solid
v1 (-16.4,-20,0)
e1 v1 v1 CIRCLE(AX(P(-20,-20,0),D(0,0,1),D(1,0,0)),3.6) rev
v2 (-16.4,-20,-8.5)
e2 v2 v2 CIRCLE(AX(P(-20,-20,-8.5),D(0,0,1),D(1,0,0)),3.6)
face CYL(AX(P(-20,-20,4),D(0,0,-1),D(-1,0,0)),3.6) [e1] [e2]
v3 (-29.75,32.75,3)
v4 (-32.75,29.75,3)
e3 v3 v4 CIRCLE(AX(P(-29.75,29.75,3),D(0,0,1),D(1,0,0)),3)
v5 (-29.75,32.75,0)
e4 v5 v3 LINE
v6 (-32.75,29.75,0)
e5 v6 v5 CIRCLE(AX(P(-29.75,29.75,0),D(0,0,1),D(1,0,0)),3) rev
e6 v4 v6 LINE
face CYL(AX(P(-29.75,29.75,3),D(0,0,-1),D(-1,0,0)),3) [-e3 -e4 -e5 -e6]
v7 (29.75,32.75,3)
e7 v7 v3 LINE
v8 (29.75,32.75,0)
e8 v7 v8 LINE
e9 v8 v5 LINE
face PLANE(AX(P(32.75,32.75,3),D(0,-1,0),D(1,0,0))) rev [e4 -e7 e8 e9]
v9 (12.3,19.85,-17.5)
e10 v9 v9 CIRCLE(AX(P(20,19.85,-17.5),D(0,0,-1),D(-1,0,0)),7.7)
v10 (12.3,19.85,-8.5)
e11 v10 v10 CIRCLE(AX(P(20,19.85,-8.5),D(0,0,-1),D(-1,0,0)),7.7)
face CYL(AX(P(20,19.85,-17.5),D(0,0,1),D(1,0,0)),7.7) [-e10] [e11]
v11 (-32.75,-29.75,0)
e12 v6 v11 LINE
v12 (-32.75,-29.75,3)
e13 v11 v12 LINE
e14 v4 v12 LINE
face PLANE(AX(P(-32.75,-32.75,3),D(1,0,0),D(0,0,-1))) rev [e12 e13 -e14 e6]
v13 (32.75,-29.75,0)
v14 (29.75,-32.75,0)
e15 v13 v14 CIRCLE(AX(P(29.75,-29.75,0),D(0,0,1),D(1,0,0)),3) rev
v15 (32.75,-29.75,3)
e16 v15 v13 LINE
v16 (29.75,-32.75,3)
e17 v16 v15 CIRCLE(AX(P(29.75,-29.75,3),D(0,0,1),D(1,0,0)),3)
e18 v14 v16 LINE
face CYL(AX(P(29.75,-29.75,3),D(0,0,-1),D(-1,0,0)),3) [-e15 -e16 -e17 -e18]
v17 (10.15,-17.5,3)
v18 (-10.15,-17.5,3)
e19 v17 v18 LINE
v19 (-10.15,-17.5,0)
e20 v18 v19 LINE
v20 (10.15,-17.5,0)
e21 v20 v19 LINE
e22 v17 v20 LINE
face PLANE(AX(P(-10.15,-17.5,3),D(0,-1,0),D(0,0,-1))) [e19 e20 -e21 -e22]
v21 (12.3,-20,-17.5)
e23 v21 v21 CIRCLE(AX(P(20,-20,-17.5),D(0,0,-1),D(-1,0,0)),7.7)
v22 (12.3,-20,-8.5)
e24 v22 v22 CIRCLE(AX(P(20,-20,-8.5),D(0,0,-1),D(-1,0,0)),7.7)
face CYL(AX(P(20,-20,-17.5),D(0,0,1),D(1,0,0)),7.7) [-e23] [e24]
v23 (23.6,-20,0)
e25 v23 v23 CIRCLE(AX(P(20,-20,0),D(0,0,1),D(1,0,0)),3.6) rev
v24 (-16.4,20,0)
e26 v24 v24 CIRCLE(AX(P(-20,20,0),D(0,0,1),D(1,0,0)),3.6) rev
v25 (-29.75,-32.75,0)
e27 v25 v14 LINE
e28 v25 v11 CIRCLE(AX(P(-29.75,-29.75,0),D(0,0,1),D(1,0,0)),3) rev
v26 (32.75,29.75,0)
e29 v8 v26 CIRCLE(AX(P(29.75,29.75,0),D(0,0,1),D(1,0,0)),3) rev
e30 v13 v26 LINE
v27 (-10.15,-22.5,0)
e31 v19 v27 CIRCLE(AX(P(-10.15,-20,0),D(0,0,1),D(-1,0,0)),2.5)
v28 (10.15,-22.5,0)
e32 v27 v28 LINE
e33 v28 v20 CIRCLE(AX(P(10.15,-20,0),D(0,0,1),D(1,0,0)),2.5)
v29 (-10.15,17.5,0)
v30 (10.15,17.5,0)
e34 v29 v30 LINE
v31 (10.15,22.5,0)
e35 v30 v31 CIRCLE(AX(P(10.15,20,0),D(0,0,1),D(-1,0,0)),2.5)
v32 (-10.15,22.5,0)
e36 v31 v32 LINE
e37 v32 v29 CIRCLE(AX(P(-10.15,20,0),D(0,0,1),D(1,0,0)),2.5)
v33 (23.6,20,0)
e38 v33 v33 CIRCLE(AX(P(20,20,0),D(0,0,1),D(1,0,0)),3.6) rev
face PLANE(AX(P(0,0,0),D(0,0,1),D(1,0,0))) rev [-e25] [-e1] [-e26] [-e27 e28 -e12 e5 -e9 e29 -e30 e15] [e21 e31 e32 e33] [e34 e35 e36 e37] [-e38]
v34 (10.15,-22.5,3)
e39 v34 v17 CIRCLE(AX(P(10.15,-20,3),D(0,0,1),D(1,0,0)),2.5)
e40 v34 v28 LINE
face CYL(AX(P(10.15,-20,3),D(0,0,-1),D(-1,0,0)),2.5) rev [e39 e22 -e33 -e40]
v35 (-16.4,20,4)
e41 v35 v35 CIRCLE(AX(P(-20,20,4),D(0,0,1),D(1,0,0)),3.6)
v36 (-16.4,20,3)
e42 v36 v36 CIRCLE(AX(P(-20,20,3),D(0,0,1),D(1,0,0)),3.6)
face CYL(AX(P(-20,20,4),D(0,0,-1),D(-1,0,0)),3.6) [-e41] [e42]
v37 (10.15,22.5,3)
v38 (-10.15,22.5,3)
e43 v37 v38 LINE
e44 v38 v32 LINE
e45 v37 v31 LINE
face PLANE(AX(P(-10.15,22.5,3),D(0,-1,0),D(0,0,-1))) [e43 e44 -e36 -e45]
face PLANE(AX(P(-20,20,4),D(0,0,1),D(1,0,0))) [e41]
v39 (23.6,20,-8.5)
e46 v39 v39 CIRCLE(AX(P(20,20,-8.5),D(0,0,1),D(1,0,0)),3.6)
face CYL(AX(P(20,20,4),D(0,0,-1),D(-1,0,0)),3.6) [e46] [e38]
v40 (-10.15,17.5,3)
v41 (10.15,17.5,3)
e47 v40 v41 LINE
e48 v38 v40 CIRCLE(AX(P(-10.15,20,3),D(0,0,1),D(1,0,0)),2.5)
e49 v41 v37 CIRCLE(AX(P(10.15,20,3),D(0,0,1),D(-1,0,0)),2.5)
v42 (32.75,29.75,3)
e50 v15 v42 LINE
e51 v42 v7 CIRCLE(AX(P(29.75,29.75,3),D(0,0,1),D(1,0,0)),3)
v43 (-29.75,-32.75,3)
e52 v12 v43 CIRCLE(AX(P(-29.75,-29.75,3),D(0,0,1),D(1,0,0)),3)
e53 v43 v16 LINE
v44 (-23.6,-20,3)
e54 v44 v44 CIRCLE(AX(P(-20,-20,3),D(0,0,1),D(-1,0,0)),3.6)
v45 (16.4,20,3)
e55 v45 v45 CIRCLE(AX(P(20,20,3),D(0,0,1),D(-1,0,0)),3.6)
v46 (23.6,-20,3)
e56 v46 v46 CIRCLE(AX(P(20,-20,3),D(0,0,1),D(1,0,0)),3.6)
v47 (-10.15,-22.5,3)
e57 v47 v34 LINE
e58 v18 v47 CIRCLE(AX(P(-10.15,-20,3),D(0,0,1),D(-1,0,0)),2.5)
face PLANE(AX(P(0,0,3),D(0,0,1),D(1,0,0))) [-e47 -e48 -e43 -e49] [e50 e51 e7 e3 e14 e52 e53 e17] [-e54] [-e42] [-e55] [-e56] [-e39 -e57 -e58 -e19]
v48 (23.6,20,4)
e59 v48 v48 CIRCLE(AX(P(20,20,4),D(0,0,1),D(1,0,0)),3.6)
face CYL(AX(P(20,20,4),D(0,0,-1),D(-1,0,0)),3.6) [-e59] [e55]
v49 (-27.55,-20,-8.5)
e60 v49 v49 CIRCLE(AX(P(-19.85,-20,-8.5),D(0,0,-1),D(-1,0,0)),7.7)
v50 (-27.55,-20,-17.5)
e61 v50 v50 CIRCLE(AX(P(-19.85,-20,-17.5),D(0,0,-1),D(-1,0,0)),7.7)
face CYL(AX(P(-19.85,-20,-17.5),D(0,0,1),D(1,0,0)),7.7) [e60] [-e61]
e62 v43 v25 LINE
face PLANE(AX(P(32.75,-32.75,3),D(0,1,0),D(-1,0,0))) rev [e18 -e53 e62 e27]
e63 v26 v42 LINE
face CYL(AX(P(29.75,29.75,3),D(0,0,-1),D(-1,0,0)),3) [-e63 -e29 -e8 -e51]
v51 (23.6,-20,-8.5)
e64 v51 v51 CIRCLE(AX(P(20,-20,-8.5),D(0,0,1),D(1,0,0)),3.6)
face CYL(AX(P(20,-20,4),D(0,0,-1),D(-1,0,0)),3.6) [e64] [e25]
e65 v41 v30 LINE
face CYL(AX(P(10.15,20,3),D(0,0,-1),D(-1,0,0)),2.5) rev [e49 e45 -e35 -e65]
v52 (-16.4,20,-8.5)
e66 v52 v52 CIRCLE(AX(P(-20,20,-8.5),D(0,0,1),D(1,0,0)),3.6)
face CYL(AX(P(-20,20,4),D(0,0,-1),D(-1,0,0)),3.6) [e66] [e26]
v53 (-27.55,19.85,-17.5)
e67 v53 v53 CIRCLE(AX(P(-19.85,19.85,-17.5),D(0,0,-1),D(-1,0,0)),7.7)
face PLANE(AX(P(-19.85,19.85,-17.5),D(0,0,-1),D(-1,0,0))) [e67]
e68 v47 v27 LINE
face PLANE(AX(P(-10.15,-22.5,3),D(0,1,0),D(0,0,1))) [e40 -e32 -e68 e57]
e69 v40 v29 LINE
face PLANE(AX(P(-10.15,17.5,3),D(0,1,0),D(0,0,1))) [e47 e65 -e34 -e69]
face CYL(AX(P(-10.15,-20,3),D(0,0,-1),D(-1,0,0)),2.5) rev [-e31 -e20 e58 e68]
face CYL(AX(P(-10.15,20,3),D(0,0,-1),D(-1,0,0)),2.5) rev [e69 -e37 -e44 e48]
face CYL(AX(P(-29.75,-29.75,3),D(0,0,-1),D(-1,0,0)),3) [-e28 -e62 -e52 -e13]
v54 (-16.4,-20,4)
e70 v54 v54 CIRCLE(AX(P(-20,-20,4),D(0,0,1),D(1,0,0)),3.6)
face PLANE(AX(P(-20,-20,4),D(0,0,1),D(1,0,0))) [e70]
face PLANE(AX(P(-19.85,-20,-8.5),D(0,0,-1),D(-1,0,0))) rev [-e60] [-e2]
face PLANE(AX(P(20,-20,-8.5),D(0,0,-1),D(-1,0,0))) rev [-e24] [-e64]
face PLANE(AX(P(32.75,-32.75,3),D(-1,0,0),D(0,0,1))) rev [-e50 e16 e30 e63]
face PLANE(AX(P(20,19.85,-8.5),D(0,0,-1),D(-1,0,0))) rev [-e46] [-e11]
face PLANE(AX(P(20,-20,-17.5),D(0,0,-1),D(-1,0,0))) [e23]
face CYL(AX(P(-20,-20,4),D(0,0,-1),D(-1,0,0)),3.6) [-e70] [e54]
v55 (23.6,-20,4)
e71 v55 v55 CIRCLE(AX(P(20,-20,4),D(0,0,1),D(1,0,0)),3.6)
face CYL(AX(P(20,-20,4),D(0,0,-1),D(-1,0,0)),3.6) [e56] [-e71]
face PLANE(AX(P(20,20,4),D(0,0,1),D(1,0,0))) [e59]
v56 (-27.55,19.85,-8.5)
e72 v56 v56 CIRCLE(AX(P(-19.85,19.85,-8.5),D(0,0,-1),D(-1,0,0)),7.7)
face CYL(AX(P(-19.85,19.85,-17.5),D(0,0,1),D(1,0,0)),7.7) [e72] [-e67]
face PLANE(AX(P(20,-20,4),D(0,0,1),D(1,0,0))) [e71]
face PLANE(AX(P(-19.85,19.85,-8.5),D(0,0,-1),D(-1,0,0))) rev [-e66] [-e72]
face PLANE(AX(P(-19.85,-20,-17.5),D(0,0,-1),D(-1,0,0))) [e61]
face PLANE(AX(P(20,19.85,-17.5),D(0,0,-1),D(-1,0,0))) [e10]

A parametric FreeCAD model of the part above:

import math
import FreeCAD as App
import Part
import Sketcher
from FreeCAD import Vector


def edges_at(feature, points):
    """Names of the edges that pass closest to the given points."""
    edges = feature.Shape.Edges
    near = lambda p: min(range(len(edges)), key=lambda i: edges[i].distToShape(Part.Vertex(*p))[0])
    return sorted({f"Edge{near(p) + 1}" for p in points})


def add_polygon(sketch, points):
    """Adds a closed chain of lines whose ends are joined by coincident constraints."""
    first, n = sketch.GeometryCount, len(points)
    for a, b in zip(points, points[1:] + points[:1]):
        sketch.addGeometry(Part.LineSegment(App.Vector(*a, 0), App.Vector(*b, 0)), False)
    for i in range(n):
        sketch.addConstraint(Sketcher.Constraint("Coincident", first + i, 2, first + (i + 1) % n, 1))

doc = App.newDocument("Part")
body = doc.addObject("PartDesign::Body", "Body")

# Sketch on XY plane
sketch1 = body.newObject("Sketcher::SketchObject", "Sketch")
sketch1.AttachmentSupport = (doc.getObject("XY_Plane"), [""])
sketch1.MapMode = "FlatFace"
add_polygon(sketch1, [(-32.8, 32.8), (-32.8, -32.8), (32.8, -32.8), (32.8, 32.8)])  # lines 0-3
sketch1.addGeometry(Part.Circle(Vector(-20, -20, 0), Vector(0, 0, 1), 3.6), False)  # 4
sketch1.addGeometry(Part.LineSegment(Vector(10.2, -22.5, 0), Vector(-10.2, -22.5, 0)), False)  # 5
sketch1.addGeometry(Part.ArcOfCircle(Part.Circle(Vector(-10.2, -20, 0), Vector(0, 0, 1), 2.5), math.radians(90), math.radians(270)), False)  # 6
sketch1.addGeometry(Part.LineSegment(Vector(-10.2, -17.5, 0), Vector(10.2, -17.5, 0)), False)  # 7
sketch1.addGeometry(Part.ArcOfCircle(Part.Circle(Vector(10.2, -20, 0), Vector(0, 0, 1), 2.5), math.radians(-90), math.radians(90)), False)  # 8
sketch1.addGeometry(Part.Circle(Vector(20, -20, 0), Vector(0, 0, 1), 3.6), False)  # 9
sketch1.addGeometry(Part.Circle(Vector(-20, 20, 0), Vector(0, 0, 1), 3.6), False)  # 10
sketch1.addGeometry(Part.ArcOfCircle(Part.Circle(Vector(-10.2, 20, 0), Vector(0, 0, 1), 2.5), math.radians(90), math.radians(270)), False)  # 11
sketch1.addGeometry(Part.LineSegment(Vector(-10.2, 22.5, 0), Vector(10.2, 22.5, 0)), False)  # 12
sketch1.addGeometry(Part.ArcOfCircle(Part.Circle(Vector(10.2, 20, 0), Vector(0, 0, 1), 2.5), math.radians(-90), math.radians(90)), False)  # 13
sketch1.addGeometry(Part.LineSegment(Vector(10.2, 17.5, 0), Vector(-10.2, 17.5, 0)), False)  # 14
sketch1.addGeometry(Part.Circle(Vector(20, 20, 0), Vector(0, 0, 1), 3.6), False)  # 15
sketch1.addConstraint(Sketcher.Constraint("Tangent", 5, 2, 6, 2))
sketch1.addConstraint(Sketcher.Constraint("Tangent", 6, 1, 7, 1))
sketch1.addConstraint(Sketcher.Constraint("Tangent", 7, 2, 8, 2))
sketch1.addConstraint(Sketcher.Constraint("Tangent", 8, 1, 5, 1))
sketch1.addConstraint(Sketcher.Constraint("Tangent", 11, 1, 12, 1))
sketch1.addConstraint(Sketcher.Constraint("Tangent", 12, 2, 13, 2))
sketch1.addConstraint(Sketcher.Constraint("Tangent", 13, 1, 14, 1))
sketch1.addConstraint(Sketcher.Constraint("Tangent", 14, 2, 11, 2))
sketch1.addConstraint(Sketcher.Constraint("Vertical", 0))
sketch1.addConstraint(Sketcher.Constraint("Horizontal", 1))
sketch1.addConstraint(Sketcher.Constraint("Vertical", 2))
sketch1.addConstraint(Sketcher.Constraint("Horizontal", 3))
sketch1.addConstraint(Sketcher.Constraint("Horizontal", 5))
sketch1.addConstraint(Sketcher.Constraint("Horizontal", 7))
sketch1.addConstraint(Sketcher.Constraint("Horizontal", 12))
sketch1.addConstraint(Sketcher.Constraint("Horizontal", 14))
sketch1.addConstraint(Sketcher.Constraint("Equal", 4, 9))
sketch1.addConstraint(Sketcher.Constraint("Equal", 9, 10))
sketch1.addConstraint(Sketcher.Constraint("Equal", 8, 11))
sketch1.addConstraint(Sketcher.Constraint("Equal", 10, 15))
sketch1.addConstraint(Sketcher.Constraint("Symmetric", 9, 3, 10, 3, -1, 1))
sketch1.addConstraint(Sketcher.Constraint("Symmetric", 8, 3, 11, 3, -1, 1))
sketch1.addConstraint(Sketcher.Constraint("Symmetric", 4, 3, 15, 3, -1, 1))
sketch1.addConstraint(Sketcher.Constraint("Symmetric", 0, 2, 2, 2, -1, 1))
sketch1.addConstraint(Sketcher.Constraint("Symmetric", 4, 3, 9, 3, -2))
sketch1.addConstraint(Sketcher.Constraint("Horizontal", 4, 3, 6, 3))
sketch1.addConstraint(Sketcher.Constraint("Vertical", 6, 3, 11, 3))
sketch1.addConstraint(Sketcher.Constraint("Vertical", 8, 3, 13, 3))
sketch1.addConstraint(Sketcher.Constraint("Equal", 3, 0))
sketch1.addConstraint(Sketcher.Constraint("Diameter", 4, 7.2))
sketch1.addConstraint(Sketcher.Constraint("Radius", 6, 2.5))
sketch1.addConstraint(Sketcher.Constraint("DistanceX", 1, 1, 1, 2, 65.5))
sketch1.addConstraint(Sketcher.Constraint("DistanceX", 5, 2, 5, 1, 20.3))
sketch1.addConstraint(Sketcher.Constraint("DistanceX", 4, 3, -1, 1, 20.0))
sketch1.addConstraint(Sketcher.Constraint("DistanceY", 4, 3, -1, 1, 20.0))
pad1 = body.newObject("PartDesign::Pad", "Pad")
pad1.Profile = sketch1
pad1.Length = 3
doc.recompute()

fillet = body.newObject("PartDesign::Fillet", "Fillet")
fillet.Base = (pad1, edges_at(pad1, [
    (-32.75, 32.75, 1.5),
    (32.75, 32.75, 1.5),
    (32.75, -32.75, 1.5),
    (-32.75, -32.75, 1.5),
]))
fillet.Radius = 3

# Sketch on XY plane
sketch2 = body.newObject("Sketcher::SketchObject", "Sketch001")
sketch2.AttachmentSupport = (doc.getObject("XY_Plane"), [""])
sketch2.MapMode = "FlatFace"
sketch2.AttachmentOffset = App.Placement(Vector(0, 0, 3), App.Rotation())
sketch2.addGeometry(Part.Circle(Vector(-20, 20, 0), Vector(0, 0, 1), 3.6), False)
sketch2.addGeometry(Part.Circle(Vector(-20, -20, 0), Vector(0, 0, 1), 3.6), False)
sketch2.addGeometry(Part.Circle(Vector(20, 20, 0), Vector(0, 0, 1), 3.6), False)
sketch2.addGeometry(Part.Circle(Vector(20, -20, 0), Vector(0, 0, 1), 3.6), False)
sketch2.addConstraint(Sketcher.Constraint("Equal", 0, 1))
sketch2.addConstraint(Sketcher.Constraint("Equal", 1, 2))
sketch2.addConstraint(Sketcher.Constraint("Equal", 2, 3))
sketch2.addConstraint(Sketcher.Constraint("Symmetric", 1, 3, 2, 3, -1, 1))
sketch2.addConstraint(Sketcher.Constraint("Symmetric", 0, 3, 3, 3, -1, 1))
sketch2.addConstraint(Sketcher.Constraint("Symmetric", 0, 3, 2, 3, -2))
sketch2.addConstraint(Sketcher.Constraint("Diameter", 0, 7.2))
sketch2.addConstraint(Sketcher.Constraint("DistanceX", 0, 3, -1, 1, 20.0))
sketch2.addConstraint(Sketcher.Constraint("DistanceY", -1, 1, 0, 3, 20.0))
pad2 = body.newObject("PartDesign::Pad", "Pad001")
pad2.Profile = sketch2
pad2.Type = "TwoLengths"
pad2.Length = 1
pad2.Length2 = 11.5

# Sketch on XY plane
sketch3 = body.newObject("Sketcher::SketchObject", "Sketch002")
sketch3.AttachmentSupport = (doc.getObject("XY_Plane"), [""])
sketch3.MapMode = "FlatFace"
sketch3.AttachmentOffset = App.Placement(Vector(0, 0, -8.5), App.Rotation())
sketch3.addGeometry(Part.Circle(Vector(20, -20, 0), Vector(0, 0, 1), 8), False)
sketch3.addGeometry(Part.Circle(Vector(20, 20, 0), Vector(0, 0, 1), 8), False)
sketch3.addGeometry(Part.Circle(Vector(-20, 20, 0), Vector(0, 0, 1), 8), False)
sketch3.addGeometry(Part.Circle(Vector(-20, -20, 0), Vector(0, 0, 1), 8), False)
sketch3.addConstraint(Sketcher.Constraint("Equal", 0, 1))
sketch3.addConstraint(Sketcher.Constraint("Equal", 1, 2))
sketch3.addConstraint(Sketcher.Constraint("Equal", 2, 3))
sketch3.addConstraint(Sketcher.Constraint("Horizontal", 1, 3, 2, 3))
sketch3.addConstraint(Sketcher.Constraint("Horizontal", 0, 3, 3, 3))
sketch3.addConstraint(Sketcher.Constraint("Vertical", 0, 3, 1, 3))
sketch3.addConstraint(Sketcher.Constraint("Vertical", 2, 3, 3, 3))
sketch3.addConstraint(Sketcher.Constraint("Diameter", 0, 15.4))
sketch3.addConstraint(Sketcher.Constraint("DistanceX", -1, 1, 0, 3, 20.0))
sketch3.addConstraint(Sketcher.Constraint("DistanceY", 0, 3, -1, 1, 20.0))
sketch3.addConstraint(Sketcher.Constraint("DistanceY", -1, 1, 1, 3, 19.85))
sketch3.addConstraint(Sketcher.Constraint("DistanceX", 2, 3, -1, 1, 19.85))
pad3 = body.newObject("PartDesign::Pad", "Pad002")
pad3.Profile = sketch3
pad3.Length = 9
pad3.Reversed = True

doc.recompute()
